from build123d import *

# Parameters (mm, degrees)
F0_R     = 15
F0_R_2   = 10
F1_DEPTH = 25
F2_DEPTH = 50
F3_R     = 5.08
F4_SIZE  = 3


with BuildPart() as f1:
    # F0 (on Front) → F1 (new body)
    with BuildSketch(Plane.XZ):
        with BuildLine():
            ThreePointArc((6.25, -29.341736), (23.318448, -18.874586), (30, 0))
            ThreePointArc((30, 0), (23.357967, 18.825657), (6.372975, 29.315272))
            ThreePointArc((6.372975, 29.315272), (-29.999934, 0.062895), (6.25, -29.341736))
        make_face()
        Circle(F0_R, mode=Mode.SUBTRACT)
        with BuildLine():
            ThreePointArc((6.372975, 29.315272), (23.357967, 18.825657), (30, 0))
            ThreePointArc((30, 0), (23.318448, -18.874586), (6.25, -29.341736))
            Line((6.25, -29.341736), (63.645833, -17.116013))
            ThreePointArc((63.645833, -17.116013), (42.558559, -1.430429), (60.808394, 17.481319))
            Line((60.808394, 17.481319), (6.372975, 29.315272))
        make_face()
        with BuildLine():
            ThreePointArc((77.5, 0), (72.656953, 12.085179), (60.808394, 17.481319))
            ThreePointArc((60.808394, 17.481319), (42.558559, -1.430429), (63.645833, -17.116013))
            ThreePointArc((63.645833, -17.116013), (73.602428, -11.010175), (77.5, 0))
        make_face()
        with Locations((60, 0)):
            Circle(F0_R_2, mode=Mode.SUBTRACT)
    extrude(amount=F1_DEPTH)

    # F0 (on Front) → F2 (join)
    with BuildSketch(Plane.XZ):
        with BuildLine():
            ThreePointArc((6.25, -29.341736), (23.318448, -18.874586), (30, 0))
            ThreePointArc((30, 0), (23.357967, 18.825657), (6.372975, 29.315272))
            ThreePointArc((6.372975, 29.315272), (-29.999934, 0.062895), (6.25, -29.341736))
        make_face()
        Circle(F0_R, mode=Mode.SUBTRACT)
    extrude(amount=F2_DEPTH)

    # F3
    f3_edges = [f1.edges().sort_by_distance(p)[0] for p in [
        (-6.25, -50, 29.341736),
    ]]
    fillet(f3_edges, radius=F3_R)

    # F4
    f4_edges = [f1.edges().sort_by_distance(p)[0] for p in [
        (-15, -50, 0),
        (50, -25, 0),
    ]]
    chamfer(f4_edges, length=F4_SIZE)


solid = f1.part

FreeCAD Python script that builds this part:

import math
import FreeCAD as App
import Part
import Sketcher
from FreeCAD import Vector


def edges_at(feature, points):
    """Names of the edges that pass closest to the given points."""
    edges = feature.Shape.Edges
    near = lambda p: min(range(len(edges)), key=lambda i: edges[i].distToShape(Part.Vertex(*p))[0])
    return sorted({f"Edge{near(p) + 1}" for p in points})

doc = App.newDocument("Part")
params = doc.addObject("Spreadsheet::Sheet", "Params")
for row, (alias, value) in enumerate([
    ("sketch1_diameter", "30 mm"),
    ("sketch1_diameter2", "20 mm"),
    ("sketch1_radius", "30 mm"),
    ("sketch1_radius2", "17.5 mm"),
    ("pad1_length", "25 mm"),
    ("sketch2_diameter", "30 mm"),
    ("sketch2_radius", "29.999998 mm"),
    ("pad2_length", "50 mm"),
    ("fillet_radius", "5.08 mm"),
    ("chamfer_size", "3 mm"),
], start=1):
    params.set(f"A{row}", alias)
    params.set(f"B{row}", "=" + value)
    params.setAlias(f"B{row}", alias)

body = doc.addObject("PartDesign::Body", "Body")

# Sketch on XZ plane
sketch1 = doc.addObject("Sketcher::SketchObject", "Sketch")
body.addObject(sketch1)
sketch1.AttachmentSupport = (doc.XZ_Plane, [""])
sketch1.MapMode = "FlatFace"
sketch1.addGeometry(Part.ArcOfCircle(Part.Circle(Vector(0, 0, 0), Vector(0, 0, 1), 30), math.radians(78), math.radians(282)), False)
sketch1.addGeometry(Part.LineSegment(Vector(6, -29, 0), Vector(64, -17, 0)), False)
sketch1.addGeometry(Part.ArcOfCircle(Part.Circle(Vector(60, 0, 0), Vector(0, 0, 1), 17), math.radians(-78), math.radians(0)), False)
sketch1.addGeometry(Part.ArcOfCircle(Part.Circle(Vector(60, 0, 0), Vector(0, 0, 1), 17), math.radians(0), math.radians(87)), False)
sketch1.addGeometry(Part.LineSegment(Vector(61, 17, 0), Vector(6, 29, 0)), False)
sketch1.addGeometry(Part.Circle(Vector(0, 0, 0), Vector(0, 0, 1), 15), False)
sketch1.addGeometry(Part.Circle(Vector(60, 0, 0), Vector(0, 0, 1), 10), False)
sketch1.addConstraint(Sketcher.Constraint("Tangent", 0, 2, 1, 1))
sketch1.addConstraint(Sketcher.Constraint("Tangent", 1, 2, 2, 1))
sketch1.addConstraint(Sketcher.Constraint("Tangent", 2, 2, 3, 1))
sketch1.addConstraint(Sketcher.Constraint("Coincident", 3, 2, 4, 1))
sketch1.addConstraint(Sketcher.Constraint("Tangent", 4, 2, 0, 1))
sketch1.addConstraint(Sketcher.Constraint("Coincident", 0, 3, -1, 1))
sketch1.addConstraint(Sketcher.Constraint("Coincident", 5, 3, -1, 1))
sketch1.addConstraint(Sketcher.Constraint("Coincident", 6, 3, 2, 3))
sketch1.addConstraint(Sketcher.Constraint("Equal", 2, 3))
sketch1.addConstraint(Sketcher.Constraint("PointOnObject", 2, 3, -1))
sketch1.addConstraint(Sketcher.Constraint("PointOnObject", 2, 2, -1))
sketch1.addConstraint(Sketcher.Constraint("Diameter", 5, 30.0))
sketch1.addConstraint(Sketcher.Constraint("Diameter", 6, 20.0))
sketch1.addConstraint(Sketcher.Constraint("Radius", 0, 30.0))
sketch1.addConstraint(Sketcher.Constraint("Radius", 2, 17.5))
sketch1.addConstraint(Sketcher.Constraint("DistanceX", -1, 1, 2, 3, 60.0))
sketch1.addConstraint(Sketcher.Constraint("DistanceY", -1, 1, 3, 2, 17.481319))
sketch1.setExpression("Constraints[11]", "Params.sketch1_diameter")
sketch1.setExpression("Constraints[12]", "Params.sketch1_diameter2")
sketch1.setExpression("Constraints[13]", "Params.sketch1_radius")
sketch1.setExpression("Constraints[14]", "Params.sketch1_radius2")
pad1 = doc.addObject("PartDesign::Pad", "Pad")
body.addObject(pad1)
pad1.Profile = sketch1
pad1.setExpression("Length", "Params.pad1_length")

# Sketch on XZ plane
sketch2 = doc.addObject("Sketcher::SketchObject", "Sketch001")
body.addObject(sketch2)
sketch2.AttachmentSupport = (doc.XZ_Plane, [""])
sketch2.MapMode = "FlatFace"
sketch2.addGeometry(Part.ArcOfCircle(Part.Circle(Vector(0, 0, 0), Vector(0, 0, 1), 30), math.radians(-78), math.radians(0)), False)
sketch2.addGeometry(Part.ArcOfCircle(Part.Circle(Vector(0, 0, 0), Vector(0, 0, 1), 30), math.radians(0), math.radians(78)), False)
sketch2.addGeometry(Part.ArcOfCircle(Part.Circle(Vector(0, 0, 0), Vector(0, 0, 1), 30), math.radians(78), math.radians(282)), False)
sketch2.addGeometry(Part.Circle(Vector(0, 0, 0), Vector(0, 0, 1), 15), False)
sketch2.addConstraint(Sketcher.Constraint("Tangent", 0, 2, 1, 1))
sketch2.addConstraint(Sketcher.Constraint("Tangent", 1, 2, 2, 1))
sketch2.addConstraint(Sketcher.Constraint("Tangent", 2, 2, 0, 1))
sketch2.addConstraint(Sketcher.Constraint("Coincident", 0, 3, -1, 1))
sketch2.addConstraint(Sketcher.Constraint("Coincident", 3, 3, -1, 1))
sketch2.addConstraint(Sketcher.Constraint("PointOnObject", 0, 2, -1))
sketch2.addConstraint(Sketcher.Constraint("Diameter", 3, 30.0))
sketch2.addConstraint(Sketcher.Constraint("Radius", 0, 29.999998))
sketch2.addConstraint(Sketcher.Constraint("DistanceX", -1, 1, 2, 2, 6.25))
sketch2.addConstraint(Sketcher.Constraint("DistanceY", -1, 1, 1, 2, 29.315272))
sketch2.setExpression("Constraints[6]", "Params.sketch2_diameter")
sketch2.setExpression("Constraints[7]", "Params.sketch2_radius")
pad2 = doc.addObject("PartDesign::Pad", "Pad001")
body.addObject(pad2)
pad2.Profile = sketch2
pad2.setExpression("Length", "Params.pad2_length")
doc.recompute()

fillet = doc.addObject("PartDesign::Fillet", "Fillet")
body.addObject(fillet)
fillet.Base = (pad2, edges_at(pad2, [(-30, -50, 0.063)]))
fillet.setExpression("Radius", "Params.fillet_radius")
doc.recompute()

chamfer = doc.addObject("PartDesign::Chamfer", "Chamfer")
body.addObject(chamfer)
chamfer.Base = (fillet, edges_at(fillet, [(-15, -50, 0), (50, -25, 0)]))
chamfer.setExpression("Size", "Params.chamfer_size")

doc.recompute()
